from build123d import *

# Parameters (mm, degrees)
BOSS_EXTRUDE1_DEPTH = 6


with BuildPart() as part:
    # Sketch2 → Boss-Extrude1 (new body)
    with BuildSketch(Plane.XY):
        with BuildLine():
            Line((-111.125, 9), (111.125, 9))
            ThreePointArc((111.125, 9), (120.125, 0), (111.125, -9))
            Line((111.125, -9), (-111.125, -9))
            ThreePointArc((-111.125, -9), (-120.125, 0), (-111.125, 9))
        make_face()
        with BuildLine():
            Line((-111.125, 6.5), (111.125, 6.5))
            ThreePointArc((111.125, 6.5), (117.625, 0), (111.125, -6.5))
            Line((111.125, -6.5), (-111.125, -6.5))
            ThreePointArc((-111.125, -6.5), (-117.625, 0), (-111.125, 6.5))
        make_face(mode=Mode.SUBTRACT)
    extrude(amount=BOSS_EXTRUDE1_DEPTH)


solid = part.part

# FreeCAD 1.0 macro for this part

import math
import FreeCAD as App
import Part
import Sketcher
from FreeCAD import Vector

doc = App.newDocument("Part")
body = doc.addObject("PartDesign::Body", "Body")

sketch1 = body.newObject("Sketcher::SketchObject", "Sketch")
sketch1.AttachmentSupport = (doc.getObject("XY_Plane"), [""])
sketch1.MapMode = "FlatFace"
sketch1.addGeometry([
    Part.LineSegment(Vector(111, 9, 0), Vector(-111, 9, 0)),
    Part.ArcOfCircle(Part.Circle(Vector(-111, 0, 0), Vector(0, 0, 1), 9), math.radians(90), math.radians(270)),
    Part.LineSegment(Vector(-111, -9, 0), Vector(111, -9, 0)),
    Part.ArcOfCircle(Part.Circle(Vector(111, 0, 0), Vector(0, 0, 1), 9), math.radians(-90), math.radians(90)),
    Part.LineSegment(Vector(-111, 6, 0), Vector(111, 6, 0)),
    Part.ArcOfCircle(Part.Circle(Vector(111, 0, 0), Vector(0, 0, 1), 6), math.radians(-90), math.radians(90)),
    Part.LineSegment(Vector(111, -6, 0), Vector(-111, -6, 0)),
    Part.ArcOfCircle(Part.Circle(Vector(-111, 0, 0), Vector(0, 0, 1), 6), math.radians(90), math.radians(270)),
], False)
sketch1.addConstraint([
    Sketcher.Constraint("Tangent", 0, 2, 1, 1),
    Sketcher.Constraint("Tangent", 1, 2, 2, 1),
    Sketcher.Constraint("Tangent", 2, 2, 3, 1),
    Sketcher.Constraint("Tangent", 3, 2, 0, 1),
    Sketcher.Constraint("Tangent", 4, 2, 5, 2),
    Sketcher.Constraint("Tangent", 5, 1, 6, 1),
    Sketcher.Constraint("Tangent", 6, 2, 7, 2),
    Sketcher.Constraint("Tangent", 7, 1, 4, 1),
    Sketcher.Constraint("Horizontal", 0),
    Sketcher.Constraint("Horizontal", 2),
    Sketcher.Constraint("Horizontal", 4),
    Sketcher.Constraint("Horizontal", 6),
    Sketcher.Constraint("Coincident", 5, 3, 3, 3),
    Sketcher.Constraint("Symmetric", 1, 3, 3, 3, -1, 1),
    Sketcher.Constraint("Vertical", 7, 3, 0, 2),
    Sketcher.Constraint("Radius", 1, 9.0),
    Sketcher.Constraint("Radius", 5, 6.5),
    Sketcher.Constraint("DistanceX", 0, 2, 0, 1, 222.25),
])
pad1 = body.newObject("PartDesign::Pad", "Pad")
pad1.Profile = sketch1
pad1.Length = 6

doc.recompute()
